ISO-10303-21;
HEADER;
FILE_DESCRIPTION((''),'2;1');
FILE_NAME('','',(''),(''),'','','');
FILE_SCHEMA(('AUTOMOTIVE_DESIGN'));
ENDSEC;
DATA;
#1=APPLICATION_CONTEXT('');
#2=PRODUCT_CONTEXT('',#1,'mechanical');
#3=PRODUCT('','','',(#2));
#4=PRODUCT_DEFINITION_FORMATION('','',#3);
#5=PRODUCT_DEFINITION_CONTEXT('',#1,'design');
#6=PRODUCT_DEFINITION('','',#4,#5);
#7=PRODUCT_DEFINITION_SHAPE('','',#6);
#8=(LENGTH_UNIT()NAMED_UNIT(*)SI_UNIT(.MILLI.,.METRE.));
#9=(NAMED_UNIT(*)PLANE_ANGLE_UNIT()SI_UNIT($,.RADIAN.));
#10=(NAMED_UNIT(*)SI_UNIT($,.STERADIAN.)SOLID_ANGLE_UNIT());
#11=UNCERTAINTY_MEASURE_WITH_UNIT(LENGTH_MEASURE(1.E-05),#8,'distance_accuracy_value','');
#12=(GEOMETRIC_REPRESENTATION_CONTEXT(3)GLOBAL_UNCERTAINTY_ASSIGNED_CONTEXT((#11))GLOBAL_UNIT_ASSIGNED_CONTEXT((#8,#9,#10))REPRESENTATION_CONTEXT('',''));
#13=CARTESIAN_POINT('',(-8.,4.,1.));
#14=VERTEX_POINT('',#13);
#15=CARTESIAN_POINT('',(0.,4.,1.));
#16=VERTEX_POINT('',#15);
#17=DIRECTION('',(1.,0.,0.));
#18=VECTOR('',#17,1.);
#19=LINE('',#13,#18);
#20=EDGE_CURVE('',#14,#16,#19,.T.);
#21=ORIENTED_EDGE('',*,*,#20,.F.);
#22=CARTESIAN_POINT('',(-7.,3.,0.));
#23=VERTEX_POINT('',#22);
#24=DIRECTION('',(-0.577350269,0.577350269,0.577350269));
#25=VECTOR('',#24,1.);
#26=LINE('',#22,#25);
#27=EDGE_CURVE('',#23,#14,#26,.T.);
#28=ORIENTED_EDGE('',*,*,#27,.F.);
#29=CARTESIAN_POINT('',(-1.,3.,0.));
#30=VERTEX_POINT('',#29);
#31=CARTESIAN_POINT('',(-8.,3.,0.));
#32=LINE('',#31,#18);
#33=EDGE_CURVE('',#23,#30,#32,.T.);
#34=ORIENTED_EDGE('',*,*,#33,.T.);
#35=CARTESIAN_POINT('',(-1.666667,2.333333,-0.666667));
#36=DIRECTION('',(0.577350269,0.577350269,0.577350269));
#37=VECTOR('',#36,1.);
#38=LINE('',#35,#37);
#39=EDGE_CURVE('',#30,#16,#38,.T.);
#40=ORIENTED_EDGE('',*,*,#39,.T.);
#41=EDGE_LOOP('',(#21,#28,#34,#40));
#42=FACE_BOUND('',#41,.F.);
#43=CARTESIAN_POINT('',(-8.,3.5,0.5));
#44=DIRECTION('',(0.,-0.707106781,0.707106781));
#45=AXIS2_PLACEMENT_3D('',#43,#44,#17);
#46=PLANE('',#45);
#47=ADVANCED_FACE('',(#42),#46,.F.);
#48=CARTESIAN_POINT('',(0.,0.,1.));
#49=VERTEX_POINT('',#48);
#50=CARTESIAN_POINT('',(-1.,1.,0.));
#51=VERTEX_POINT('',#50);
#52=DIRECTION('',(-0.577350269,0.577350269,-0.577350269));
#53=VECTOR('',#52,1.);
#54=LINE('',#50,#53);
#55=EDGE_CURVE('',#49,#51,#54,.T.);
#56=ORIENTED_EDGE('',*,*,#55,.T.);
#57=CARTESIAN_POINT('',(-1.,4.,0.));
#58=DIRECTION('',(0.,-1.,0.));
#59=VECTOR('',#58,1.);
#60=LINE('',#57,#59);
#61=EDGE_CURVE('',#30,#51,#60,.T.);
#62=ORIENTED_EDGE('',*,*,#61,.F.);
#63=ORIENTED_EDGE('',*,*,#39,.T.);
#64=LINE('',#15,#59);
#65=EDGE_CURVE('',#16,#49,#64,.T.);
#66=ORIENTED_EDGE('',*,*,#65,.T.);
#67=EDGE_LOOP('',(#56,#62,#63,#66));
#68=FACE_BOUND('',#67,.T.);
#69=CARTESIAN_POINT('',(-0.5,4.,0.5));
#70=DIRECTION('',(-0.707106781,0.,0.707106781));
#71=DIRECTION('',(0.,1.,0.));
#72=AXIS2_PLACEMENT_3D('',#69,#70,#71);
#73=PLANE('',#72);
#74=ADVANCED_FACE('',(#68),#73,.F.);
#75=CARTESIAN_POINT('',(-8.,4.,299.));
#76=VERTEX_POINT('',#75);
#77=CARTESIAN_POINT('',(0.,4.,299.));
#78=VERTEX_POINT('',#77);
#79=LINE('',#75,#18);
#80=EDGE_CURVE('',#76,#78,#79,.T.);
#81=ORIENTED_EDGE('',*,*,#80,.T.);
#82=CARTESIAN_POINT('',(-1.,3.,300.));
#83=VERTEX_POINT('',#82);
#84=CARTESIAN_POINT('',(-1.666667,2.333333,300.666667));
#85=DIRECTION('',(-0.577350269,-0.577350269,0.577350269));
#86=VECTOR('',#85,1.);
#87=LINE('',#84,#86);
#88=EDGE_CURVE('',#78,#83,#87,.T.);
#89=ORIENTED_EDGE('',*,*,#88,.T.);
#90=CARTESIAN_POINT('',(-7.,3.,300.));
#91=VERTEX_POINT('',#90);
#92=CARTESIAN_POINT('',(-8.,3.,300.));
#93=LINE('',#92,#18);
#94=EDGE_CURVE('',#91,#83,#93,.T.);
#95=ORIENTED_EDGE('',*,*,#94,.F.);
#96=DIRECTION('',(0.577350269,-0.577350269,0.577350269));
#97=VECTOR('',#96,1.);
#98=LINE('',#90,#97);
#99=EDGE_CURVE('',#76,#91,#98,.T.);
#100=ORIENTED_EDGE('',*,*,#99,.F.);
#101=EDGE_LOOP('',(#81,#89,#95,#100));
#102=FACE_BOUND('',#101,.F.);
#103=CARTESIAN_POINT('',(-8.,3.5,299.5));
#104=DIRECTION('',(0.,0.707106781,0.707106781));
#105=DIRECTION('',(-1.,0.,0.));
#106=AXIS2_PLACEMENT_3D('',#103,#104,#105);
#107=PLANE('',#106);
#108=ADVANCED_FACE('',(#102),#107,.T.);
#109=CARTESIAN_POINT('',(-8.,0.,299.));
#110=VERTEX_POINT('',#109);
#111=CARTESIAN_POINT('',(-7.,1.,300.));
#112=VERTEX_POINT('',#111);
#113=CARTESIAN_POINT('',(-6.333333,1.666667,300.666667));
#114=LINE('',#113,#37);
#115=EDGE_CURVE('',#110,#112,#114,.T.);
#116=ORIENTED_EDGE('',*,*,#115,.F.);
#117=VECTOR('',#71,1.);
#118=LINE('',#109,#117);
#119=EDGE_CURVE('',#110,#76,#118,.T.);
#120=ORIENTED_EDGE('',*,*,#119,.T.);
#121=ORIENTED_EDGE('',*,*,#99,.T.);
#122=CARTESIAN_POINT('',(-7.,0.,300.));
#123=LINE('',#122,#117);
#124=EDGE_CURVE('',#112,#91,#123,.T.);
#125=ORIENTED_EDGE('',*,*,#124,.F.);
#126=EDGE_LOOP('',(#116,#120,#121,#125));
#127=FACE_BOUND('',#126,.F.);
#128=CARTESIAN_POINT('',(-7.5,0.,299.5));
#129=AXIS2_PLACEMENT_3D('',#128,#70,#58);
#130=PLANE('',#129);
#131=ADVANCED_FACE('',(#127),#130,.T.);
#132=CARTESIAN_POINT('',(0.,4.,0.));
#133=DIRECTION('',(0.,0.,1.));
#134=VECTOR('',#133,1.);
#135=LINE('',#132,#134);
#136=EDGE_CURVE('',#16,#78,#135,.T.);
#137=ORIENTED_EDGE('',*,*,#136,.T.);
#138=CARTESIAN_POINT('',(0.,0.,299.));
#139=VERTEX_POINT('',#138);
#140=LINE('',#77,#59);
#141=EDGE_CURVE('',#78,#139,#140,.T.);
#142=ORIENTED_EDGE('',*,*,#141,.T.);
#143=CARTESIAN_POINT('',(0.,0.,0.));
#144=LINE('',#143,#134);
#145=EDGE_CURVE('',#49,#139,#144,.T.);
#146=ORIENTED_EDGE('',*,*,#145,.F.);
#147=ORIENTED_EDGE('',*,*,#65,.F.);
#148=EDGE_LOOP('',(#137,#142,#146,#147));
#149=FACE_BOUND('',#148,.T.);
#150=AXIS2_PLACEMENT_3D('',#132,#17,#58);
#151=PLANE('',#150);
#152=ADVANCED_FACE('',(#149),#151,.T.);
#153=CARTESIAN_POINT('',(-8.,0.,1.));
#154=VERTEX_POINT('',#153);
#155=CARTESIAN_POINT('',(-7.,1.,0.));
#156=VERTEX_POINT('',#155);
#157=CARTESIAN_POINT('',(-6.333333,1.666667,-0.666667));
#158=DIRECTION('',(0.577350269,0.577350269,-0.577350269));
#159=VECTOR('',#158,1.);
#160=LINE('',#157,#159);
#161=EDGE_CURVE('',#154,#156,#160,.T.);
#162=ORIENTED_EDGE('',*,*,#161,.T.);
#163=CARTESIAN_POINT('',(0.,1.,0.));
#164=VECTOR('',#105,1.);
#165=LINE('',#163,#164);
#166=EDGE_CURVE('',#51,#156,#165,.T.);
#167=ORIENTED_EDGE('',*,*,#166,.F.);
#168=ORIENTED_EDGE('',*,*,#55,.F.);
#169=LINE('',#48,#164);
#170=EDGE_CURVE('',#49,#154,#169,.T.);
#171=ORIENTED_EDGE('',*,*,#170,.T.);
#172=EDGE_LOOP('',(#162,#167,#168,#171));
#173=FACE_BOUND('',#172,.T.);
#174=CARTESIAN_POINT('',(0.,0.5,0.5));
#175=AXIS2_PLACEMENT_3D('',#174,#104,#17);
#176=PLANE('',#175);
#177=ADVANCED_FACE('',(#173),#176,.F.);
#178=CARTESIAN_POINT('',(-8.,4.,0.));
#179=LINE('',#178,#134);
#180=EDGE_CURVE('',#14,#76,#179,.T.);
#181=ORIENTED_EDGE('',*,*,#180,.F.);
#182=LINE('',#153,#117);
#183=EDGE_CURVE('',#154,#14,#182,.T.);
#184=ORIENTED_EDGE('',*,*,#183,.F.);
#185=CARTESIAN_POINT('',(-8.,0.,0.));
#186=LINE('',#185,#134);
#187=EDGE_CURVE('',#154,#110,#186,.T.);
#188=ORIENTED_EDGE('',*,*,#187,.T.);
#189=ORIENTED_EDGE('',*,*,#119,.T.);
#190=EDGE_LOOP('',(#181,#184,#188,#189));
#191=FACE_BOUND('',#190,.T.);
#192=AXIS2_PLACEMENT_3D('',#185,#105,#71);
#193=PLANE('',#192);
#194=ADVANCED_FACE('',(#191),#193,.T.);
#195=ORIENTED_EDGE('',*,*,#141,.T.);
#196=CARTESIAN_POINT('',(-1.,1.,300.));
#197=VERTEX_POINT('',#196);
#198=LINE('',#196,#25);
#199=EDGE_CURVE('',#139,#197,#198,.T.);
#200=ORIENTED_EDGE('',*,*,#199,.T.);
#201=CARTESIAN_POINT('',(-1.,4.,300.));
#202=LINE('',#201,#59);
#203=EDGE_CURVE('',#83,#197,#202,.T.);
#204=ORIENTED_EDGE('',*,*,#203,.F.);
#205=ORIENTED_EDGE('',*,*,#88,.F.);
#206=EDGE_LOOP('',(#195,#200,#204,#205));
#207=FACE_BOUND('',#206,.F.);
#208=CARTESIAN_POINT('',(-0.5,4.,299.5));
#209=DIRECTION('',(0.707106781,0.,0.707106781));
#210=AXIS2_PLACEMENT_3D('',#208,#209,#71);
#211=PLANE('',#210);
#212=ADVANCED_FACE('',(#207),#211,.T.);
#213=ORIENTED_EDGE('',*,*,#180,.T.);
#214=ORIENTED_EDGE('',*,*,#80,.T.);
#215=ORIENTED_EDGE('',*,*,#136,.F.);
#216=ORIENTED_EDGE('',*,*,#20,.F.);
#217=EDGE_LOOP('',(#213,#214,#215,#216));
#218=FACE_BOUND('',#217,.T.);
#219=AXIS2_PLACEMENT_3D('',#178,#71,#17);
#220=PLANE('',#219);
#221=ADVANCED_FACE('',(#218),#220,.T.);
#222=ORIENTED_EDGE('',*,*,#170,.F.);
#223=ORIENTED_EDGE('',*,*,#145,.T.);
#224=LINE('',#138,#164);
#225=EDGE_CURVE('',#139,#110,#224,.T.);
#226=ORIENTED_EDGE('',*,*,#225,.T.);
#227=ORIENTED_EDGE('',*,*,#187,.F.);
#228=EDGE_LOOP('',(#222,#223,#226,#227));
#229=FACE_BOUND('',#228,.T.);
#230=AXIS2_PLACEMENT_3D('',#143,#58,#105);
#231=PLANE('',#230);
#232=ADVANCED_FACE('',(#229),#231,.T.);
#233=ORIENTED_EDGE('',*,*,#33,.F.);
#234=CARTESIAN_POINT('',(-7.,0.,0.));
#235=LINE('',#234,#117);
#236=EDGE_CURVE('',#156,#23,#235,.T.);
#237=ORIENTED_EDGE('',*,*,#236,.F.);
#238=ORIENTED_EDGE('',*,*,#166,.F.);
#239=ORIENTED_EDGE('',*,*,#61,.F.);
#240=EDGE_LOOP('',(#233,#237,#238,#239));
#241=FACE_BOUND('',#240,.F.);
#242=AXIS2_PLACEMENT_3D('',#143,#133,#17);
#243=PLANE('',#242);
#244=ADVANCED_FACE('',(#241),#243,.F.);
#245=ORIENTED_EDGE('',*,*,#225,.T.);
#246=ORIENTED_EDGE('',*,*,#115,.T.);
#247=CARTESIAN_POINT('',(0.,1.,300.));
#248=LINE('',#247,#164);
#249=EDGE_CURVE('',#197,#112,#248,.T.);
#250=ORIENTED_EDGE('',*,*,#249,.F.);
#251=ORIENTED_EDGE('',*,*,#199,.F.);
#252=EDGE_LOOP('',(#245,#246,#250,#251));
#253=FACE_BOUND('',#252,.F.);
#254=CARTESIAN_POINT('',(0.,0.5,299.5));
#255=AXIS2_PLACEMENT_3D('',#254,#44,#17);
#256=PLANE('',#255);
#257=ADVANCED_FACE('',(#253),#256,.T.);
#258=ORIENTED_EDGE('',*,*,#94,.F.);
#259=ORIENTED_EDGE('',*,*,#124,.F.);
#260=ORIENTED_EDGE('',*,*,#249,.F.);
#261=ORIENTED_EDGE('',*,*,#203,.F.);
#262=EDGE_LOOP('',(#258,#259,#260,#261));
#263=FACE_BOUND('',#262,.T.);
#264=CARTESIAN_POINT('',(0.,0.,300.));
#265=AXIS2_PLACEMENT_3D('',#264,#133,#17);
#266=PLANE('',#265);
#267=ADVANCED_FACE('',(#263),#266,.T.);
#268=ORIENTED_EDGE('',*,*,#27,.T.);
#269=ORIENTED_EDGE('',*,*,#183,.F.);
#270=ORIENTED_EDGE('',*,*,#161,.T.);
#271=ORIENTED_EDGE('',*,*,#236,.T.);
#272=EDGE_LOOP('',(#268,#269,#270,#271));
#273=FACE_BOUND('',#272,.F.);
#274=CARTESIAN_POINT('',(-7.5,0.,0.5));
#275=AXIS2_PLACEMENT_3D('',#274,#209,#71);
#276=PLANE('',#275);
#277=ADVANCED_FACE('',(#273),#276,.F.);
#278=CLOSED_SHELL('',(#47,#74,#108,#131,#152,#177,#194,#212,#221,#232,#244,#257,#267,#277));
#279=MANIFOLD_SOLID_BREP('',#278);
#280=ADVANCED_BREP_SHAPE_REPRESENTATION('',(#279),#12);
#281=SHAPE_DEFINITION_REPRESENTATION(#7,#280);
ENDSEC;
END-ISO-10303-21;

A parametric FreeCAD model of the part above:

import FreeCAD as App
import Part
import Sketcher

V = App.Vector
Q = App.Units.Quantity


def edges_at(feature, points):
    """Names of the edges that pass closest to the given points."""
    edges = feature.Shape.Edges
    near = lambda p: min(range(len(edges)), key=lambda i: edges[i].distToShape(Part.Vertex(*p))[0])
    return sorted({f"Edge{near(p) + 1}" for p in points})

doc = App.newDocument("Part")
body = doc.addObject("PartDesign::Body", "Body")

sketch1 = body.newObject("Sketcher::SketchObject", "Sketch")
sketch1.AttachmentSupport = (doc.getObject("XY_Plane"), [""])
sketch1.MapMode = "FlatFace"
sketch1.addGeometry([
    Part.LineSegment(V(-8, 0, 0), V(0, 0, 0)),
    Part.LineSegment(V(0, 0, 0), V(0, 4, 0)),
    Part.LineSegment(V(0, 4, 0), V(-8, 4, 0)),
    Part.LineSegment(V(-8, 4, 0), V(-8, 0, 0)),
], False)
sketch1.addConstraint([
    Sketcher.Constraint("Coincident", 0, 2, 1, 1),
    Sketcher.Constraint("Coincident", 1, 2, 2, 1),
    Sketcher.Constraint("Coincident", 2, 2, 3, 1),
    Sketcher.Constraint("Coincident", 3, 2, 0, 1),
    Sketcher.Constraint("Horizontal", 0),
    Sketcher.Constraint("Vertical", 1),
    Sketcher.Constraint("Horizontal", 2),
    Sketcher.Constraint("Vertical", 3),
    Sketcher.Constraint("Coincident", 0, 2, -1, 1),
    Sketcher.Constraint("DistanceX", 0, 1, 0, 2, Q("8 mm")),
    Sketcher.Constraint("DistanceY", 1, 1, 1, 2, Q("4 mm")),
])
pad1 = body.newObject("PartDesign::Pad", "Pad")
pad1.Profile = sketch1
pad1.Length = 300
doc.recompute()

chamfer = body.newObject("PartDesign::Chamfer", "Chamfer")
chamfer.Base = (pad1, edges_at(pad1, [
    (-4, 4, 300),
    (0, 2, 300),
    (-4, 0, 300),
    (-8, 2, 300),
]))
chamfer.Size = 1
doc.recompute()

chamfer2 = body.newObject("PartDesign::Chamfer", "Chamfer001")
chamfer2.Base = (chamfer, edges_at(chamfer, [
    (-4, 4, 0),
    (0, 2, 0),
    (-4, 0, 0),
    (-8, 2, 0),
]))
chamfer2.Size = 1

doc.recompute()
